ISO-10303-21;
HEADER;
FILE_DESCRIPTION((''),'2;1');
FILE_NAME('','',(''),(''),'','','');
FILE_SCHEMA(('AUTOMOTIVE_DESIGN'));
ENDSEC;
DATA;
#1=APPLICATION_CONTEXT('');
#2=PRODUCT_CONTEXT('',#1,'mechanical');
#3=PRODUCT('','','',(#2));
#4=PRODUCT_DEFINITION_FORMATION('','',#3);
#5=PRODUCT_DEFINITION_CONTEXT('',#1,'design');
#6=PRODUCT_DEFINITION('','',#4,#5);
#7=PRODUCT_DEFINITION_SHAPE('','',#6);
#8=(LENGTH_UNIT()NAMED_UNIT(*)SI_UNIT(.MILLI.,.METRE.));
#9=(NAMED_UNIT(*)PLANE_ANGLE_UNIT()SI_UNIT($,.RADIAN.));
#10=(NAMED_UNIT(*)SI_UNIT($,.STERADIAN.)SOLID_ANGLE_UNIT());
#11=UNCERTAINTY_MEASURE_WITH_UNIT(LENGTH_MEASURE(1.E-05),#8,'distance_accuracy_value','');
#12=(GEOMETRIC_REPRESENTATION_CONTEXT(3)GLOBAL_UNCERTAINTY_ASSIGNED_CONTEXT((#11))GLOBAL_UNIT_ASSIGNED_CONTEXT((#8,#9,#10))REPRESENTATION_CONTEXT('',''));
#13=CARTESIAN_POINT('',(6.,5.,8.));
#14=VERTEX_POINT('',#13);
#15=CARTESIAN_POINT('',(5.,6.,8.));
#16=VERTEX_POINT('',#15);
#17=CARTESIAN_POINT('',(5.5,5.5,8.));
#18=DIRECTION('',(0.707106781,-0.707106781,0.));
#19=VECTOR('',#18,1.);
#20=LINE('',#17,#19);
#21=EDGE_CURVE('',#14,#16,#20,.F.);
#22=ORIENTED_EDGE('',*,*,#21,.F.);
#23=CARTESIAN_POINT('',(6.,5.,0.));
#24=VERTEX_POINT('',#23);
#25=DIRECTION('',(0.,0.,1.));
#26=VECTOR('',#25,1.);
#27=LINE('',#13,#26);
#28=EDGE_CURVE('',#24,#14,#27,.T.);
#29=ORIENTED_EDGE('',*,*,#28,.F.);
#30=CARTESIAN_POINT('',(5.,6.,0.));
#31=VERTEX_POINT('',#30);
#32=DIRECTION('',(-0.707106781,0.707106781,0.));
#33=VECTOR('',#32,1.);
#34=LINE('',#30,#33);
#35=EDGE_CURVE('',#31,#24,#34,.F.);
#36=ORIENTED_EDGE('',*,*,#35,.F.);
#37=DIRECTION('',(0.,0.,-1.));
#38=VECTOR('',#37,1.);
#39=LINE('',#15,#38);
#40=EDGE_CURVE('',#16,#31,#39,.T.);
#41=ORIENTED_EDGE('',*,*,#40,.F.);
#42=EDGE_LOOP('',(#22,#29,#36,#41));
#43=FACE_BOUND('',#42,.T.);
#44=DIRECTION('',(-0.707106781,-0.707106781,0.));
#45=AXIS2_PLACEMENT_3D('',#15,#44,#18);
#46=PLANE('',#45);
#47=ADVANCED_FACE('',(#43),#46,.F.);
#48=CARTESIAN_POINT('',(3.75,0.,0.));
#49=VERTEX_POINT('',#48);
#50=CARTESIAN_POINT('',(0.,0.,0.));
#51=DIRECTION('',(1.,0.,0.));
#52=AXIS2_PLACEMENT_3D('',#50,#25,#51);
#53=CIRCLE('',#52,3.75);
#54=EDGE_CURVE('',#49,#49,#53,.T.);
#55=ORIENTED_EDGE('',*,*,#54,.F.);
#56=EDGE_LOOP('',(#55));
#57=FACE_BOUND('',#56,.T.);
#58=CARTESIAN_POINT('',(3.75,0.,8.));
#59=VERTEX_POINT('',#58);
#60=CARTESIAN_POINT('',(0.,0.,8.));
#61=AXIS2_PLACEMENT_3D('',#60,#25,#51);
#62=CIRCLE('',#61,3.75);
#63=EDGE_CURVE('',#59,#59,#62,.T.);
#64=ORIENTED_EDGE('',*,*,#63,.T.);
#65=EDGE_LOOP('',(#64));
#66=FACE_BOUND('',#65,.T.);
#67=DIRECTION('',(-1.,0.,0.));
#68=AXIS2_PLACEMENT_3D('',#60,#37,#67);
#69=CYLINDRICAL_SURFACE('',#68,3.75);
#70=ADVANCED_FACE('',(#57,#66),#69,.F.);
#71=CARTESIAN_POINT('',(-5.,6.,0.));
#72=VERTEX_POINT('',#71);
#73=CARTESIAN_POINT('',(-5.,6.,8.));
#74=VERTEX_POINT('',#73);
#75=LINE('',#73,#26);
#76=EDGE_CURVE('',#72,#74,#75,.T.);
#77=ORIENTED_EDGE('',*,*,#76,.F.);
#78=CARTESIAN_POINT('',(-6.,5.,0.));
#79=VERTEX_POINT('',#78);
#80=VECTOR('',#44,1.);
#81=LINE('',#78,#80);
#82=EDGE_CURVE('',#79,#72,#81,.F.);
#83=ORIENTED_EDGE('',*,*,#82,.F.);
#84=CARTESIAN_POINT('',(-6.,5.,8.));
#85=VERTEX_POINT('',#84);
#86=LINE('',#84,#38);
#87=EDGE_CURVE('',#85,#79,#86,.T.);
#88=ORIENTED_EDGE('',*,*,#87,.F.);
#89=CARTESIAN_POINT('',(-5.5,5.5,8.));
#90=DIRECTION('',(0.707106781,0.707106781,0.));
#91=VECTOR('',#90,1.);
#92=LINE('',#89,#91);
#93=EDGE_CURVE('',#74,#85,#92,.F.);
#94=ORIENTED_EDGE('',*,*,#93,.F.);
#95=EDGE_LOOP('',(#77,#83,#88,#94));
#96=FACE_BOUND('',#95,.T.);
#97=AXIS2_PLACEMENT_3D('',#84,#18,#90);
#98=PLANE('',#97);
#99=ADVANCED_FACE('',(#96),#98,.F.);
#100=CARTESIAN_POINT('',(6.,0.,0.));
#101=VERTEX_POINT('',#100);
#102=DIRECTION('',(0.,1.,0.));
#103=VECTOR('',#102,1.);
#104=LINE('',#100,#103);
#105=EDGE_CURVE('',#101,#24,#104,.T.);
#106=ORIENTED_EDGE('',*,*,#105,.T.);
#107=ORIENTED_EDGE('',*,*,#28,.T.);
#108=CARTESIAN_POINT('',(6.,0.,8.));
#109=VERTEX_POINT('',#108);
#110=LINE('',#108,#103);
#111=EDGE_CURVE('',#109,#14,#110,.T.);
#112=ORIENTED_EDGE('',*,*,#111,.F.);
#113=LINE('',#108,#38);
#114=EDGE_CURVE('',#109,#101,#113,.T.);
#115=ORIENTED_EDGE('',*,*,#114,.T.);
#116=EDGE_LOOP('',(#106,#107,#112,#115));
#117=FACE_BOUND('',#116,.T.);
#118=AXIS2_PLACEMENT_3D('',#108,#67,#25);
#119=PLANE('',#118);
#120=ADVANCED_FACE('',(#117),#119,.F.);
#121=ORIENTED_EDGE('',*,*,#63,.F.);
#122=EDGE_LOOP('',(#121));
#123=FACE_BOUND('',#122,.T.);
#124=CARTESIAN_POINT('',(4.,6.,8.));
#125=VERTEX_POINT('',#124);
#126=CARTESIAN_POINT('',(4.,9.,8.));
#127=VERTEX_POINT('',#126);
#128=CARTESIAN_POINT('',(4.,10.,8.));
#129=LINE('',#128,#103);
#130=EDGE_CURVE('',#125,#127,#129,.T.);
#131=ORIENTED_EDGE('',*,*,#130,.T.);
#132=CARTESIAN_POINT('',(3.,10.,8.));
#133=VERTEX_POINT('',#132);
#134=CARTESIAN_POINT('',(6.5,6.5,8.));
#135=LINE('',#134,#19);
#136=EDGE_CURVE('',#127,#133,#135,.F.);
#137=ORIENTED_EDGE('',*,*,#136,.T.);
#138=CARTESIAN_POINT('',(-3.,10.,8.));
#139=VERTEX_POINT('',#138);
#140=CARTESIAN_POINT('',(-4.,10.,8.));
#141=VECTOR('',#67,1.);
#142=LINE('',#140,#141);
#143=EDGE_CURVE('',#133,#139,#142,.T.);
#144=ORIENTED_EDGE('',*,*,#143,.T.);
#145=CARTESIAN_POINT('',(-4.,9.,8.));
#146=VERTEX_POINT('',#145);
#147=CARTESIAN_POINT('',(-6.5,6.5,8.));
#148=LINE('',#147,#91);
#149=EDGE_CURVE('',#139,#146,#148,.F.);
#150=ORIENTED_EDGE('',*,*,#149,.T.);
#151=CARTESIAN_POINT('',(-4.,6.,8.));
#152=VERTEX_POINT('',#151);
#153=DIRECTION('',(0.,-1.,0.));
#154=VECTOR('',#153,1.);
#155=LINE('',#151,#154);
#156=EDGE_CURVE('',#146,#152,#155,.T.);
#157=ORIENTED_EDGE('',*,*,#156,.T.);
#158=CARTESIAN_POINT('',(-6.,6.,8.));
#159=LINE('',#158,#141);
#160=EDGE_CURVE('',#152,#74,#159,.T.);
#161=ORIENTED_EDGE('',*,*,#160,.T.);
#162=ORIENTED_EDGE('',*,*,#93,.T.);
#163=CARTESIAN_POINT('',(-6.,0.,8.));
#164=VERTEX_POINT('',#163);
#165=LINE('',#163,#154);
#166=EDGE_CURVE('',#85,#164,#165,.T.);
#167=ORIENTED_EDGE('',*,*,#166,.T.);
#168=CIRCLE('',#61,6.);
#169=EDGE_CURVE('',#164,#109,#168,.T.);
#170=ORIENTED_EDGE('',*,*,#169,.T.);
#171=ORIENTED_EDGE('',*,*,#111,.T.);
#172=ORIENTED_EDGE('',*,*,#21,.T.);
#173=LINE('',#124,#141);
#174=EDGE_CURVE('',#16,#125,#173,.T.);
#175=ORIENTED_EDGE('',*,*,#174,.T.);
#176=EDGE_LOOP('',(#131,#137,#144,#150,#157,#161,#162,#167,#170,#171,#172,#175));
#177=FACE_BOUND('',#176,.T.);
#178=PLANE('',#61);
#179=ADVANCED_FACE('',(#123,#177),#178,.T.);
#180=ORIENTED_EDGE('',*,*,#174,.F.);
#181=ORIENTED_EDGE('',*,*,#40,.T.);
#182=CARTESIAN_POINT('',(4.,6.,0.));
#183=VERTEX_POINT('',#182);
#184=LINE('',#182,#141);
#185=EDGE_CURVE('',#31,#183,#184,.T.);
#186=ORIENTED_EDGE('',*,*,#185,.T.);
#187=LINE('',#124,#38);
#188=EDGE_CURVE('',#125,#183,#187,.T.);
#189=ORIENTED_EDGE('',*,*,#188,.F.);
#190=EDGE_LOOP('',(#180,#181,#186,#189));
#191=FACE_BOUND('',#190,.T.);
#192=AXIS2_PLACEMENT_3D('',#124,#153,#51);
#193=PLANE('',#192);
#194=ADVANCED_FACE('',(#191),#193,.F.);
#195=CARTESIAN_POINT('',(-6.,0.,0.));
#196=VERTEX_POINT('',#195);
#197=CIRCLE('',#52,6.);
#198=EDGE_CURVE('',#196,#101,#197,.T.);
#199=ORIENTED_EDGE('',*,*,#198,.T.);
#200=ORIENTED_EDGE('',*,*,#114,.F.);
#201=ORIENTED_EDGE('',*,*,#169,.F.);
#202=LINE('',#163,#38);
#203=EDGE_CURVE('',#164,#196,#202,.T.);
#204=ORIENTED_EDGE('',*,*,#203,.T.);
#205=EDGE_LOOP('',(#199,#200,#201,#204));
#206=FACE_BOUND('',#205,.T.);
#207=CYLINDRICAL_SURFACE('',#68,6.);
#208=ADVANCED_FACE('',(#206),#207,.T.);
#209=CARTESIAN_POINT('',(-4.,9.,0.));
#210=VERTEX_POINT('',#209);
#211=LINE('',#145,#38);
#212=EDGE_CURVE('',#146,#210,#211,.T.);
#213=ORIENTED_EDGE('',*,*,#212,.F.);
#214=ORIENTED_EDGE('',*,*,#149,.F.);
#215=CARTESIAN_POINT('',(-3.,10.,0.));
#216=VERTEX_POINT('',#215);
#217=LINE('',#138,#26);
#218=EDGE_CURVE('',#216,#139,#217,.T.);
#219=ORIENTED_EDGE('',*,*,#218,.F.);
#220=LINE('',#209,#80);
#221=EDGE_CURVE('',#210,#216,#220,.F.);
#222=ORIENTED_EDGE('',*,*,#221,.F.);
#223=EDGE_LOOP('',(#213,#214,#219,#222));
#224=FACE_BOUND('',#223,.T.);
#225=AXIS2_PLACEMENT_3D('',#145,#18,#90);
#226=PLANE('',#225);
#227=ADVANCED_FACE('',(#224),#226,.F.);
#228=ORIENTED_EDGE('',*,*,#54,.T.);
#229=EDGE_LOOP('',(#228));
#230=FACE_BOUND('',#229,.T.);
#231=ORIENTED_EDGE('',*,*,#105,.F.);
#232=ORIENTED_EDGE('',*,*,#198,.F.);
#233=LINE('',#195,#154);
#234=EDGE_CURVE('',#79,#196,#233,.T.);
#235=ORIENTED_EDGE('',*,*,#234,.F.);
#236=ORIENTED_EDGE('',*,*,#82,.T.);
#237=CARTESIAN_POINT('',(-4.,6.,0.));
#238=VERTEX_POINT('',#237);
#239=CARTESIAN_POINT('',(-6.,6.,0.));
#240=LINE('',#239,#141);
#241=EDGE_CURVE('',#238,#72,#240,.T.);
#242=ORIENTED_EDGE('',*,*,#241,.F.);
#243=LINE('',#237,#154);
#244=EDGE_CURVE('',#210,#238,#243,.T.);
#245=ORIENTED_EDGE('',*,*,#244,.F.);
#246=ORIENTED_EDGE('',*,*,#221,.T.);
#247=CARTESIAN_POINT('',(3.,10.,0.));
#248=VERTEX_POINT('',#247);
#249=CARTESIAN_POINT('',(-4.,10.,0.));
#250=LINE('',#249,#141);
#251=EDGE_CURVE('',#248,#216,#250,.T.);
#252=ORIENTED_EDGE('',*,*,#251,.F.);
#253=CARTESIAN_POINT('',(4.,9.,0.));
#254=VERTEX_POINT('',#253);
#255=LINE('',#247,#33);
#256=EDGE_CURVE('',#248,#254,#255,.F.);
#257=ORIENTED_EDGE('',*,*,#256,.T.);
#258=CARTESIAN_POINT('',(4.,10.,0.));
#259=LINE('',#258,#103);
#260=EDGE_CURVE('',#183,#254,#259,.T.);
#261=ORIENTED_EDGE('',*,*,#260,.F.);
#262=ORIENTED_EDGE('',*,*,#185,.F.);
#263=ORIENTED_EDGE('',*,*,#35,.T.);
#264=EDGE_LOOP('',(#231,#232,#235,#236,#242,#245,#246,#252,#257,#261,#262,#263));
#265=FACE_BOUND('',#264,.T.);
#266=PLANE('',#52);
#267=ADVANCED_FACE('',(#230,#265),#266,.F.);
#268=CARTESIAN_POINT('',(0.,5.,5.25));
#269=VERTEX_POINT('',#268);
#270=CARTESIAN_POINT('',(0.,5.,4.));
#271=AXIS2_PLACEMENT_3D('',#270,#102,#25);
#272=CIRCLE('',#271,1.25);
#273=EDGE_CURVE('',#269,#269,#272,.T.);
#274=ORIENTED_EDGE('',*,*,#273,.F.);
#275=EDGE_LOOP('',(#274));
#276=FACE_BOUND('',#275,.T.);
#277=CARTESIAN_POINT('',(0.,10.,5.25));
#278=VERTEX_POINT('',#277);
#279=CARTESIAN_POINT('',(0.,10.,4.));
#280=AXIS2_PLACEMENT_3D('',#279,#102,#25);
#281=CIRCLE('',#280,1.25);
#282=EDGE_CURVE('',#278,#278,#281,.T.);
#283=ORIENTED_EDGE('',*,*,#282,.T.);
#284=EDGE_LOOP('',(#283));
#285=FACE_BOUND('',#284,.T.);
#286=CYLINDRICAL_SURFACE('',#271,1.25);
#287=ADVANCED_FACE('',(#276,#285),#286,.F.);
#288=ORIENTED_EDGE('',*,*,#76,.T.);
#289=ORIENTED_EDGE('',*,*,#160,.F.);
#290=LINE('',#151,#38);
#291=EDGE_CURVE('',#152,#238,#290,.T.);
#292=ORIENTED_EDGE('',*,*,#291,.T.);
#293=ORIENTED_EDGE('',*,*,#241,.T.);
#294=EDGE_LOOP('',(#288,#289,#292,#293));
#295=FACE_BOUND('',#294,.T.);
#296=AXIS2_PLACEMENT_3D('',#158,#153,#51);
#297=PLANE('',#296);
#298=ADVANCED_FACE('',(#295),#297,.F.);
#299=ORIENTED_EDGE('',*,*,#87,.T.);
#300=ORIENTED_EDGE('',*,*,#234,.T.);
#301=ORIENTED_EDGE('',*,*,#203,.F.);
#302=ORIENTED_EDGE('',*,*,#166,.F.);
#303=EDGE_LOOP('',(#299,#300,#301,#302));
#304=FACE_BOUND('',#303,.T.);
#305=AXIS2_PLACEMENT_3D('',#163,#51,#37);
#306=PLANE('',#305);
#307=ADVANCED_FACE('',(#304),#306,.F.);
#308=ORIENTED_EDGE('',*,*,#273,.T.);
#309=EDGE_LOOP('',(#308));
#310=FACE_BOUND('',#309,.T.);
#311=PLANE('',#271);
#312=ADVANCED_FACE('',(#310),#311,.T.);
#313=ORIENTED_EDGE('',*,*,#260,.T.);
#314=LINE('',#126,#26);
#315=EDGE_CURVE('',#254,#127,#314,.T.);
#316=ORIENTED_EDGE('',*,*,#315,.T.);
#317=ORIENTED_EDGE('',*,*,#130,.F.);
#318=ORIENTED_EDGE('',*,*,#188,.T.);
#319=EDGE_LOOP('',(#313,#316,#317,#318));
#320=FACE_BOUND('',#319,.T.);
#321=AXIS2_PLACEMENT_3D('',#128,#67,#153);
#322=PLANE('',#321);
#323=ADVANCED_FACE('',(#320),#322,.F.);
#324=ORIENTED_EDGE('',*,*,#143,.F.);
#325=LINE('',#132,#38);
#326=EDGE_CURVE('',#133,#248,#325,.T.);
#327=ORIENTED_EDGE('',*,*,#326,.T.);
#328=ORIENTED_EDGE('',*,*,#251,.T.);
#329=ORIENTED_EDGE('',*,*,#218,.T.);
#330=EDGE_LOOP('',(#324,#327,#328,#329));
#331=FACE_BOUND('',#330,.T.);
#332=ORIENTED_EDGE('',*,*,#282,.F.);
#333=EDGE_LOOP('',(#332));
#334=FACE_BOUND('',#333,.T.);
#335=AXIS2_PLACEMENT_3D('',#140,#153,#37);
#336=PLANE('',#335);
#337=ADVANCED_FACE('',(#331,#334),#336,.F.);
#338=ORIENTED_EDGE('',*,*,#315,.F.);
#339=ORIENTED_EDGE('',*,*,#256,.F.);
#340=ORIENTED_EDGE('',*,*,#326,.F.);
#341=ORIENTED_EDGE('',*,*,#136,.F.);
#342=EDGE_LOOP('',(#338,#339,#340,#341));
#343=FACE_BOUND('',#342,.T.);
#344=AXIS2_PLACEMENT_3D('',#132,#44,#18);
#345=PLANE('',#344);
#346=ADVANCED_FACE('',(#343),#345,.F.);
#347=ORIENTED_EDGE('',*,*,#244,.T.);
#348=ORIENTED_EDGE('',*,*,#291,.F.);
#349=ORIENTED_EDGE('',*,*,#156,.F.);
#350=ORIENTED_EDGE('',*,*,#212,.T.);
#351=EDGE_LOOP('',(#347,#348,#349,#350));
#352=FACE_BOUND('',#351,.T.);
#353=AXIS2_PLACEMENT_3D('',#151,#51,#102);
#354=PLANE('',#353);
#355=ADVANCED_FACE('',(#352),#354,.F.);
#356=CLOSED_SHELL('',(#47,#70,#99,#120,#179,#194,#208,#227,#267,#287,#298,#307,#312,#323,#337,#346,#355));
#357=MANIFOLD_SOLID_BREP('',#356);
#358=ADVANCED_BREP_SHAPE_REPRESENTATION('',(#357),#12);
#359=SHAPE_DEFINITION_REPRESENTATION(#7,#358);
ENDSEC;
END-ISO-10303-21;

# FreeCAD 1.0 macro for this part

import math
import FreeCAD as App
import Part
import Sketcher
from FreeCAD import Vector


def edges_at(feature, points):
    """Names of the edges that pass closest to the given points."""
    edges = feature.Shape.Edges
    near = lambda p: min(range(len(edges)), key=lambda i: edges[i].distToShape(Part.Vertex(*p))[0])
    return sorted({f"Edge{near(p) + 1}" for p in points})

doc = App.newDocument("Part")
body = doc.addObject("PartDesign::Body", "Body")

sketch1 = body.newObject("Sketcher::SketchObject", "Sketch")
sketch1.AttachmentSupport = (doc.getObject("XY_Plane"), [""])
sketch1.MapMode = "FlatFace"
sketch1.addGeometry(Part.LineSegment(Vector(-6, 6, 0), Vector(-6, 0, 0)), False)
sketch1.addGeometry(Part.ArcOfCircle(Part.Circle(Vector(0, 0, 0), Vector(0, 0, 1), 6), math.radians(180), math.radians(360)), False)
sketch1.addGeometry(Part.LineSegment(Vector(6, 0, 0), Vector(6, 6, 0)), False)
sketch1.addGeometry(Part.LineSegment(Vector(6, 6, 0), Vector(4, 6, 0)), False)
sketch1.addGeometry(Part.LineSegment(Vector(4, 6, 0), Vector(4, 10, 0)), False)
sketch1.addGeometry(Part.LineSegment(Vector(4, 10, 0), Vector(-4, 10, 0)), False)
sketch1.addGeometry(Part.LineSegment(Vector(-4, 10, 0), Vector(-4, 6, 0)), False)
sketch1.addGeometry(Part.LineSegment(Vector(-4, 6, 0), Vector(-6, 6, 0)), False)
sketch1.addGeometry(Part.Circle(Vector(0, 0, 0), Vector(0, 0, 1), 3.75), False)
sketch1.addConstraint(Sketcher.Constraint("Tangent", 0, 2, 1, 1))
sketch1.addConstraint(Sketcher.Constraint("Tangent", 1, 2, 2, 1))
sketch1.addConstraint(Sketcher.Constraint("Coincident", 2, 2, 3, 1))
sketch1.addConstraint(Sketcher.Constraint("Coincident", 3, 2, 4, 1))
sketch1.addConstraint(Sketcher.Constraint("Coincident", 4, 2, 5, 1))
sketch1.addConstraint(Sketcher.Constraint("Coincident", 5, 2, 6, 1))
sketch1.addConstraint(Sketcher.Constraint("Coincident", 6, 2, 7, 1))
sketch1.addConstraint(Sketcher.Constraint("Coincident", 7, 2, 0, 1))
sketch1.addConstraint(Sketcher.Constraint("Vertical", 0))
sketch1.addConstraint(Sketcher.Constraint("Vertical", 2))
sketch1.addConstraint(Sketcher.Constraint("Horizontal", 3))
sketch1.addConstraint(Sketcher.Constraint("Vertical", 4))
sketch1.addConstraint(Sketcher.Constraint("Horizontal", 5))
sketch1.addConstraint(Sketcher.Constraint("Vertical", 6))
sketch1.addConstraint(Sketcher.Constraint("Horizontal", 7))
sketch1.addConstraint(Sketcher.Constraint("Coincident", 1, 3, -1, 1))
sketch1.addConstraint(Sketcher.Constraint("Coincident", 8, 3, -1, 1))
sketch1.addConstraint(Sketcher.Constraint("Symmetric", 3, 2, 6, 2, -2))
sketch1.addConstraint(Sketcher.Constraint("Radius", 1, 6.0))
sketch1.addConstraint(Sketcher.Constraint("Diameter", 8, 7.5))
sketch1.addConstraint(Sketcher.Constraint("DistanceX", 3, 2, 3, 1, 2.0))
sketch1.addConstraint(Sketcher.Constraint("DistanceY", 0, 2, 0, 1, 6.0))
sketch1.addConstraint(Sketcher.Constraint("DistanceY", 4, 1, 4, 2, 4.0))
pad1 = body.newObject("PartDesign::Pad", "Pad")
pad1.Profile = sketch1
pad1.Length = 8

sketch2 = body.newObject("Sketcher::SketchObject", "Sketch001")
sketch2.AttachmentSupport = (doc.getObject("XZ_Plane"), [""])
sketch2.MapMode = "FlatFace"
sketch2.AttachmentOffset = App.Placement(Vector(0, 0, -10), App.Rotation())
sketch2.addGeometry(Part.Circle(Vector(0, 4, 0), Vector(0, 0, 1), 1.25), False)
sketch2.addConstraint(Sketcher.Constraint("PointOnObject", 0, 3, -2))
sketch2.addConstraint(Sketcher.Constraint("Diameter", 0, 2.5))
sketch2.addConstraint(Sketcher.Constraint("DistanceY", -1, 1, 0, 3, 4.0))
pocket1 = body.newObject("PartDesign::Pocket", "Pocket")
pocket1.Profile = sketch2
pocket1.Length = 5
pocket1.Reversed = True
doc.recompute()

chamfer = body.newObject("PartDesign::Chamfer", "Chamfer")
chamfer.Base = (pocket1, edges_at(pocket1, [
    (-6, 6, 4),
    (-4, 10, 4),
    (4, 10, 4),
    (6, 6, 4),
]))
chamfer.Size = 1

doc.recompute()
